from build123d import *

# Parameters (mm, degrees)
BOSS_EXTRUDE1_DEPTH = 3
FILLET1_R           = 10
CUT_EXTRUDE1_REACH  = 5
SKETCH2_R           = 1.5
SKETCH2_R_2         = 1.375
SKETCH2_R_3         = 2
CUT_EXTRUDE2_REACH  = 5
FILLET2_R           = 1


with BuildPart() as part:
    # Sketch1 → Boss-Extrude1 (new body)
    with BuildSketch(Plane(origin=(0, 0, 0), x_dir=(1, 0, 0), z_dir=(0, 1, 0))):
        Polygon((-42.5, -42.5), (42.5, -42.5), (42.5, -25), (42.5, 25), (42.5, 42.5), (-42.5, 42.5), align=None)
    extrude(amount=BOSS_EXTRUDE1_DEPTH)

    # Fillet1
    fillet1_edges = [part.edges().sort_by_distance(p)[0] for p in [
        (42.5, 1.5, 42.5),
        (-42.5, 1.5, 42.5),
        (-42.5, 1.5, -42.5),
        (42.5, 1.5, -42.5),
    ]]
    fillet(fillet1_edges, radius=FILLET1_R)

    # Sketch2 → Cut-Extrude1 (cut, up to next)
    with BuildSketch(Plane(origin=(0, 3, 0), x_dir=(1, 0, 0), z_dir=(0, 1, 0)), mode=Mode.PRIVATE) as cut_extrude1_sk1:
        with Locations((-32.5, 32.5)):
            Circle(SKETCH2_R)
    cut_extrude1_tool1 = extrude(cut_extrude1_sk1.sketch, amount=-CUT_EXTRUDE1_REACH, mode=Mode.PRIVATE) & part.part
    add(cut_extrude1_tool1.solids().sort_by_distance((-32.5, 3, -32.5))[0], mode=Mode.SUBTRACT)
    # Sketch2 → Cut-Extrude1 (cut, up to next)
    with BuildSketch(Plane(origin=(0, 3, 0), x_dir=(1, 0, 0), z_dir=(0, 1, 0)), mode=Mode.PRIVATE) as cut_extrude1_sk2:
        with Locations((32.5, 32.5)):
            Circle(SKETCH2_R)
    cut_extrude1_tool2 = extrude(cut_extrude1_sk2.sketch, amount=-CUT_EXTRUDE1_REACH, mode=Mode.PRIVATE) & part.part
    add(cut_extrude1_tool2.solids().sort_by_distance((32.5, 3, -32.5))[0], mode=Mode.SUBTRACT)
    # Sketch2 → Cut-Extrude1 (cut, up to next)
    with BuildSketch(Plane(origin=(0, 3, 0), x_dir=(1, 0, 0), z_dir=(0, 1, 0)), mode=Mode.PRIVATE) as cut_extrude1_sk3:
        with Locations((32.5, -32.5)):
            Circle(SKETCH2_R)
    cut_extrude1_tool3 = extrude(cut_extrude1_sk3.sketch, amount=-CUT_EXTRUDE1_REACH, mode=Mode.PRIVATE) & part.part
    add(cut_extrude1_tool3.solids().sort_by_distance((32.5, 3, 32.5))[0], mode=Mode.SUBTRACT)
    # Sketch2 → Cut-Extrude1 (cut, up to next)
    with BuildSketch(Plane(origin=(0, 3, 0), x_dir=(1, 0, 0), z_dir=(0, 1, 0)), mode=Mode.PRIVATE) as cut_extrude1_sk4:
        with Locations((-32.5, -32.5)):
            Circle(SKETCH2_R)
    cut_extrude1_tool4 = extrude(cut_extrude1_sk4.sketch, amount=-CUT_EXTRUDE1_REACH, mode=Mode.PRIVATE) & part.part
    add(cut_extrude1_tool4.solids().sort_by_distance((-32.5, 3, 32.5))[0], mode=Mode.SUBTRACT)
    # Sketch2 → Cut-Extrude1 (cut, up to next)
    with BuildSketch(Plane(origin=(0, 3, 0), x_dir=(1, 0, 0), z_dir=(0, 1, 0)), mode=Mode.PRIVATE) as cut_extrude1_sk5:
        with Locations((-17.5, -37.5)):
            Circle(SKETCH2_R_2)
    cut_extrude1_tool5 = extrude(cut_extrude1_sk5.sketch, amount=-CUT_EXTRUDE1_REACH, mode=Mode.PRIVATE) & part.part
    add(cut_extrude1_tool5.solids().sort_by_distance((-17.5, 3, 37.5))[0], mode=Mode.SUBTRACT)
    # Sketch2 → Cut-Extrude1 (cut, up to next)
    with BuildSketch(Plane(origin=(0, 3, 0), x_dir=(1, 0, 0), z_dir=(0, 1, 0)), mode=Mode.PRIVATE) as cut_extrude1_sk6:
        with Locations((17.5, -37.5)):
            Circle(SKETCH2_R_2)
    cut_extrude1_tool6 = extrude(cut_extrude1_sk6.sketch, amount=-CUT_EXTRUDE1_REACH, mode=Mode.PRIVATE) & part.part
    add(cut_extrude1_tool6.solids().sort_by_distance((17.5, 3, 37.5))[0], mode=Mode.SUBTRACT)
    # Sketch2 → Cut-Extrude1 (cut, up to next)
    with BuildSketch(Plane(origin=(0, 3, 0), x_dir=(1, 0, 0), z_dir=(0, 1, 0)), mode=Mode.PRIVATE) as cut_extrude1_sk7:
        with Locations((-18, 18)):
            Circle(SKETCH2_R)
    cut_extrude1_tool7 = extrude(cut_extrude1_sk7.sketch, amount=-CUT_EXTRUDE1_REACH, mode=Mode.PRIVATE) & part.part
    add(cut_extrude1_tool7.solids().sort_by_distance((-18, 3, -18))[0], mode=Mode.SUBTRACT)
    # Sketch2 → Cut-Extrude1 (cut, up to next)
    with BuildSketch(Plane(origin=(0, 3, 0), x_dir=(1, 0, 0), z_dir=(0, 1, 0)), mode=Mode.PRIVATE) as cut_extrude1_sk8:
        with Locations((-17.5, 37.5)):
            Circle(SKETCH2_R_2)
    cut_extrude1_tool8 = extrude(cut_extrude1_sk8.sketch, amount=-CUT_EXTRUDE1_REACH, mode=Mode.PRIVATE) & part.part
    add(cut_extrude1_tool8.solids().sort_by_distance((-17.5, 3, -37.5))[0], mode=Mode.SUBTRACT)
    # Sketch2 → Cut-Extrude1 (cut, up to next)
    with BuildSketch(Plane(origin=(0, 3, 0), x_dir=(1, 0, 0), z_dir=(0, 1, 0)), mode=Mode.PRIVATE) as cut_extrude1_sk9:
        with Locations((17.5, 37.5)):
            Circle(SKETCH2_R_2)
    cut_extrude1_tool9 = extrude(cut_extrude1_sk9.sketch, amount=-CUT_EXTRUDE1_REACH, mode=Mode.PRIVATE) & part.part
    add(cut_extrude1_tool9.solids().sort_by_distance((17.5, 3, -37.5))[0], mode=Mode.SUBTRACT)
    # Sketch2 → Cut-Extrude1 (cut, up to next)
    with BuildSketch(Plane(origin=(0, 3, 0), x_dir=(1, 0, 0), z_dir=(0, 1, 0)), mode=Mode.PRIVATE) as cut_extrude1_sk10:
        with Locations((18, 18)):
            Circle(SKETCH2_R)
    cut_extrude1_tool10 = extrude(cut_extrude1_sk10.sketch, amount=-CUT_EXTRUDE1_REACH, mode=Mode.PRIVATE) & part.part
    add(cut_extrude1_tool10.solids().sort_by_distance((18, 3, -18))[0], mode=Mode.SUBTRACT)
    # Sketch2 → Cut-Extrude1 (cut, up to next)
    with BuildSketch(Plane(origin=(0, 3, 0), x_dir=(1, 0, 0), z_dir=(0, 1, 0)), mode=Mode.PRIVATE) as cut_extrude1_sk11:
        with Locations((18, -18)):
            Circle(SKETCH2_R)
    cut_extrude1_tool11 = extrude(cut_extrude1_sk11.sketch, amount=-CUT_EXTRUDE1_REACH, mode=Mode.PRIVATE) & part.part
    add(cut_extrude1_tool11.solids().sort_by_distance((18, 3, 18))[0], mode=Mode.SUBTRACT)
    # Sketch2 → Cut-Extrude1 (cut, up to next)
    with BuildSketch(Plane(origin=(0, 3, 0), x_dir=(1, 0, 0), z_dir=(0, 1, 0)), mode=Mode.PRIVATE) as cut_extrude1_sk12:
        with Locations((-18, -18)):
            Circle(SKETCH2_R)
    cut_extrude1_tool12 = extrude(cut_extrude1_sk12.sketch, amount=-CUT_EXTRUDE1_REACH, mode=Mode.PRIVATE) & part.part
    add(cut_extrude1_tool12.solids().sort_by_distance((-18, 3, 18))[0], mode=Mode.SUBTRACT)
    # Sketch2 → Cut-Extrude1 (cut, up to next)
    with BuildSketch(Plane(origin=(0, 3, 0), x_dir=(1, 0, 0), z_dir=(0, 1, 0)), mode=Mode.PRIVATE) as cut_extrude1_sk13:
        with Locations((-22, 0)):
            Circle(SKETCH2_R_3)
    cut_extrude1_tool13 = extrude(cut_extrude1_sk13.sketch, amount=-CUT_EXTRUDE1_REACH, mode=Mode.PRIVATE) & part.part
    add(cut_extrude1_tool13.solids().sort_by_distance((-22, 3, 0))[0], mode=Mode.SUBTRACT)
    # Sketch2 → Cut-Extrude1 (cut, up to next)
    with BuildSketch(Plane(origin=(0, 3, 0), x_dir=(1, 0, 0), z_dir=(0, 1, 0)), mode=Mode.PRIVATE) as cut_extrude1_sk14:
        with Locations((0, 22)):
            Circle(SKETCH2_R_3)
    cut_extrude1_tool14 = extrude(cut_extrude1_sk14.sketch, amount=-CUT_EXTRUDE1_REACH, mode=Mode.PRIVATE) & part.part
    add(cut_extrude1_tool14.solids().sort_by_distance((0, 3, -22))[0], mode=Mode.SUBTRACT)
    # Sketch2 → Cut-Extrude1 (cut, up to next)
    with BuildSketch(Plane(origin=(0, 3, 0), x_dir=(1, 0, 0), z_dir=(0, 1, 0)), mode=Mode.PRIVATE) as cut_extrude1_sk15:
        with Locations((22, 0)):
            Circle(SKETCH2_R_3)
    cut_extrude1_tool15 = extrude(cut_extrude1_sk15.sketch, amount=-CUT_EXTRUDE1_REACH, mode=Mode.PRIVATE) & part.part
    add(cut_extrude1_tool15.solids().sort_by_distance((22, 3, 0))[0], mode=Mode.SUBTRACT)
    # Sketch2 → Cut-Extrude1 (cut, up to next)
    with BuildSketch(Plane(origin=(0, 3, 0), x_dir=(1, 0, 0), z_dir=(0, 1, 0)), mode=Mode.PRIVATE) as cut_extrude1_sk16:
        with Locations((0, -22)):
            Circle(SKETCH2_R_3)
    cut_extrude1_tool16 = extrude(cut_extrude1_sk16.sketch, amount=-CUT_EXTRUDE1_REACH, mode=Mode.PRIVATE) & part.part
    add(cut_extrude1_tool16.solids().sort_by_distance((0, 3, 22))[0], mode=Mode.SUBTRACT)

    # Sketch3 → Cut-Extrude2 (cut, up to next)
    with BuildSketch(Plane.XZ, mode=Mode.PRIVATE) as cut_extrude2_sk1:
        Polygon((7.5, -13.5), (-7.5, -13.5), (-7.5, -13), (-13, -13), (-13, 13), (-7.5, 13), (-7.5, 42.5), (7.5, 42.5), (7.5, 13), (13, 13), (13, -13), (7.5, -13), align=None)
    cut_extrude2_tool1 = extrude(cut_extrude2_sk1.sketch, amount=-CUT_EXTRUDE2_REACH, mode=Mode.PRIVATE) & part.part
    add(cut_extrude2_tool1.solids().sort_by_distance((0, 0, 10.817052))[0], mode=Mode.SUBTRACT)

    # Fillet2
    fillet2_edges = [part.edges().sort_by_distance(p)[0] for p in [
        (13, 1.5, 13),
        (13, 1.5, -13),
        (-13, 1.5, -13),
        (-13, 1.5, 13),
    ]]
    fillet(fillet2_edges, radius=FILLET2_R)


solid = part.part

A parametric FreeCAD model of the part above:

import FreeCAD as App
import Part
import Sketcher

V = App.Vector


def edges_at(feature, points):
    """Names of the edges that pass closest to the given points."""
    edges = feature.Shape.Edges
    near = lambda p: min(range(len(edges)), key=lambda i: edges[i].distToShape(Part.Vertex(*p))[0])
    return sorted({f"Edge{near(p) + 1}" for p in points})

doc = App.newDocument("Part")
body = doc.addObject("PartDesign::Body", "Body")

sketch1 = body.newObject("Sketcher::SketchObject", "Sketch")
sketch1.AttachmentSupport = (doc.getObject("XZ_Plane"), [""])
sketch1.MapMode = "FlatFace"
sketch1.addGeometry([
    Part.LineSegment(V(-42, 42, 0), V(42, 42, 0)),
    Part.LineSegment(V(42, 42, 0), V(42, -42, 0)),
    Part.LineSegment(V(42, -42, 0), V(-42, -42, 0)),
    Part.LineSegment(V(-42, -42, 0), V(-42, 42, 0)),
], False)
sketch1.addConstraint([
    Sketcher.Constraint("Coincident", 0, 2, 1, 1),
    Sketcher.Constraint("Coincident", 1, 2, 2, 1),
    Sketcher.Constraint("Coincident", 2, 2, 3, 1),
    Sketcher.Constraint("Coincident", 3, 2, 0, 1),
    Sketcher.Constraint("Horizontal", 0),
    Sketcher.Constraint("Vertical", 1),
    Sketcher.Constraint("Horizontal", 2),
    Sketcher.Constraint("Vertical", 3),
    Sketcher.Constraint("Symmetric", 0, 2, 2, 2, -1, 1),
    Sketcher.Constraint("Equal", 2, 1),
    Sketcher.Constraint("DistanceX", 0, 1, 0, 2, 85.0),
])
pad1 = body.newObject("PartDesign::Pad", "Pad")
pad1.Profile = sketch1
pad1.Length = 3
pad1.Reversed = True
doc.recompute()

fillet = body.newObject("PartDesign::Fillet", "Fillet")
fillet.Base = (pad1, edges_at(pad1, [
    (42.5, 1.5, 42.5),
    (-42.5, 1.5, 42.5),
    (-42.5, 1.5, -42.5),
    (42.5, 1.5, -42.5),
]))
fillet.Radius = 10

sketch2 = body.newObject("Sketcher::SketchObject", "Sketch001")
sketch2.AttachmentSupport = (doc.getObject("XZ_Plane"), [""])
sketch2.MapMode = "FlatFace"
sketch2.AttachmentOffset = App.Placement(V(0, 0, -3), App.Rotation())
sketch2.addGeometry(Part.Circle(V(-32.5, -32.5, 0), V(0, 0, 1), 1.5), False)
sketch2.addConstraint([
    Sketcher.Constraint("Diameter", 0, 3.0),
    Sketcher.Constraint("DistanceX", 0, 3, -1, 1, 32.5),
    Sketcher.Constraint("DistanceY", 0, 3, -1, 1, 32.5),
])
pocket1 = body.newObject("PartDesign::Pocket", "Pocket")
pocket1.Profile = sketch2
pocket1.Type = "UpToFirst"
pocket1.Reversed = True

sketch3 = body.newObject("Sketcher::SketchObject", "Sketch002")
sketch3.AttachmentSupport = (doc.getObject("XZ_Plane"), [""])
sketch3.MapMode = "FlatFace"
sketch3.AttachmentOffset = App.Placement(V(0, 0, -3), App.Rotation())
sketch3.addGeometry(Part.Circle(V(32.5, -32.5, 0), V(0, 0, 1), 1.5), False)
sketch3.addConstraint([
    Sketcher.Constraint("Diameter", 0, 3.0),
    Sketcher.Constraint("DistanceX", -1, 1, 0, 3, 32.5),
    Sketcher.Constraint("DistanceY", 0, 3, -1, 1, 32.5),
])
pocket2 = body.newObject("PartDesign::Pocket", "Pocket001")
pocket2.Profile = sketch3
pocket2.Type = "UpToFirst"
pocket2.Reversed = True

sketch4 = body.newObject("Sketcher::SketchObject", "Sketch003")
sketch4.AttachmentSupport = (doc.getObject("XZ_Plane"), [""])
sketch4.MapMode = "FlatFace"
sketch4.AttachmentOffset = App.Placement(V(0, 0, -3), App.Rotation())
sketch4.addGeometry(Part.Circle(V(32.5, 32.5, 0), V(0, 0, 1), 1.5), False)
sketch4.addConstraint([
    Sketcher.Constraint("Diameter", 0, 3.0),
    Sketcher.Constraint("DistanceX", -1, 1, 0, 3, 32.5),
    Sketcher.Constraint("DistanceY", -1, 1, 0, 3, 32.5),
])
pocket3 = body.newObject("PartDesign::Pocket", "Pocket002")
pocket3.Profile = sketch4
pocket3.Type = "UpToFirst"
pocket3.Reversed = True

sketch5 = body.newObject("Sketcher::SketchObject", "Sketch004")
sketch5.AttachmentSupport = (doc.getObject("XZ_Plane"), [""])
sketch5.MapMode = "FlatFace"
sketch5.AttachmentOffset = App.Placement(V(0, 0, -3), App.Rotation())
sketch5.addGeometry(Part.Circle(V(-32.5, 32.5, 0), V(0, 0, 1), 1.5), False)
sketch5.addConstraint([
    Sketcher.Constraint("Diameter", 0, 3.0),
    Sketcher.Constraint("DistanceX", 0, 3, -1, 1, 32.5),
    Sketcher.Constraint("DistanceY", -1, 1, 0, 3, 32.5),
])
pocket4 = body.newObject("PartDesign::Pocket", "Pocket003")
pocket4.Profile = sketch5
pocket4.Type = "UpToFirst"
pocket4.Reversed = True

sketch6 = body.newObject("Sketcher::SketchObject", "Sketch005")
sketch6.AttachmentSupport = (doc.getObject("XZ_Plane"), [""])
sketch6.MapMode = "FlatFace"
sketch6.AttachmentOffset = App.Placement(V(0, 0, -3), App.Rotation())
sketch6.addGeometry(Part.Circle(V(-17.5, 37.5, 0), V(0, 0, 1), 1.4), False)
sketch6.addConstraint([
    Sketcher.Constraint("Diameter", 0, 2.75),
    Sketcher.Constraint("DistanceX", 0, 3, -1, 1, 17.5),
    Sketcher.Constraint("DistanceY", -1, 1, 0, 3, 37.5),
])
pocket5 = body.newObject("PartDesign::Pocket", "Pocket004")
pocket5.Profile = sketch6
pocket5.Type = "UpToFirst"
pocket5.Reversed = True

sketch7 = body.newObject("Sketcher::SketchObject", "Sketch006")
sketch7.AttachmentSupport = (doc.getObject("XZ_Plane"), [""])
sketch7.MapMode = "FlatFace"
sketch7.AttachmentOffset = App.Placement(V(0, 0, -3), App.Rotation())
sketch7.addGeometry(Part.Circle(V(17.5, 37.5, 0), V(0, 0, 1), 1.4), False)
sketch7.addConstraint([
    Sketcher.Constraint("Diameter", 0, 2.75),
    Sketcher.Constraint("DistanceX", -1, 1, 0, 3, 17.5),
    Sketcher.Constraint("DistanceY", -1, 1, 0, 3, 37.5),
])
pocket6 = body.newObject("PartDesign::Pocket", "Pocket005")
pocket6.Profile = sketch7
pocket6.Type = "UpToFirst"
pocket6.Reversed = True

sketch8 = body.newObject("Sketcher::SketchObject", "Sketch007")
sketch8.AttachmentSupport = (doc.getObject("XZ_Plane"), [""])
sketch8.MapMode = "FlatFace"
sketch8.AttachmentOffset = App.Placement(V(0, 0, -3), App.Rotation())
sketch8.addGeometry(Part.Circle(V(-18, -18, 0), V(0, 0, 1), 1.5), False)
sketch8.addConstraint([
    Sketcher.Constraint("Diameter", 0, 3.0),
    Sketcher.Constraint("DistanceX", 0, 3, -1, 1, 18.0),
    Sketcher.Constraint("DistanceY", 0, 3, -1, 1, 18.0),
])
pocket7 = body.newObject("PartDesign::Pocket", "Pocket006")
pocket7.Profile = sketch8
pocket7.Type = "UpToFirst"
pocket7.Reversed = True

sketch9 = body.newObject("Sketcher::SketchObject", "Sketch008")
sketch9.AttachmentSupport = (doc.getObject("XZ_Plane"), [""])
sketch9.MapMode = "FlatFace"
sketch9.AttachmentOffset = App.Placement(V(0, 0, -3), App.Rotation())
sketch9.addGeometry(Part.Circle(V(-17.5, -37.5, 0), V(0, 0, 1), 1.4), False)
sketch9.addConstraint([
    Sketcher.Constraint("Diameter", 0, 2.75),
    Sketcher.Constraint("DistanceX", 0, 3, -1, 1, 17.5),
    Sketcher.Constraint("DistanceY", 0, 3, -1, 1, 37.5),
])
pocket8 = body.newObject("PartDesign::Pocket", "Pocket007")
pocket8.Profile = sketch9
pocket8.Type = "UpToFirst"
pocket8.Reversed = True

sketch10 = body.newObject("Sketcher::SketchObject", "Sketch009")
sketch10.AttachmentSupport = (doc.getObject("XZ_Plane"), [""])
sketch10.MapMode = "FlatFace"
sketch10.AttachmentOffset = App.Placement(V(0, 0, -3), App.Rotation())
sketch10.addGeometry(Part.Circle(V(17.5, -37.5, 0), V(0, 0, 1), 1.4), False)
sketch10.addConstraint([
    Sketcher.Constraint("Diameter", 0, 2.75),
    Sketcher.Constraint("DistanceX", -1, 1, 0, 3, 17.5),
    Sketcher.Constraint("DistanceY", 0, 3, -1, 1, 37.5),
])
pocket9 = body.newObject("PartDesign::Pocket", "Pocket008")
pocket9.Profile = sketch10
pocket9.Type = "UpToFirst"
pocket9.Reversed = True

sketch11 = body.newObject("Sketcher::SketchObject", "Sketch010")
sketch11.AttachmentSupport = (doc.getObject("XZ_Plane"), [""])
sketch11.MapMode = "FlatFace"
sketch11.AttachmentOffset = App.Placement(V(0, 0, -3), App.Rotation())
sketch11.addGeometry(Part.Circle(V(18, -18, 0), V(0, 0, 1), 1.5), False)
sketch11.addConstraint([
    Sketcher.Constraint("Diameter", 0, 3.0),
    Sketcher.Constraint("DistanceX", -1, 1, 0, 3, 18.0),
    Sketcher.Constraint("DistanceY", 0, 3, -1, 1, 18.0),
])
pocket10 = body.newObject("PartDesign::Pocket", "Pocket009")
pocket10.Profile = sketch11
pocket10.Type = "UpToFirst"
pocket10.Reversed = True

sketch12 = body.newObject("Sketcher::SketchObject", "Sketch011")
sketch12.AttachmentSupport = (doc.getObject("XZ_Plane"), [""])
sketch12.MapMode = "FlatFace"
sketch12.AttachmentOffset = App.Placement(V(0, 0, -3), App.Rotation())
sketch12.addGeometry(Part.Circle(V(18, 18, 0), V(0, 0, 1), 1.5), False)
sketch12.addConstraint([
    Sketcher.Constraint("Diameter", 0, 3.0),
    Sketcher.Constraint("DistanceX", -1, 1, 0, 3, 18.0),
    Sketcher.Constraint("DistanceY", -1, 1, 0, 3, 18.0),
])
pocket11 = body.newObject("PartDesign::Pocket", "Pocket010")
pocket11.Profile = sketch12
pocket11.Type = "UpToFirst"
pocket11.Reversed = True

sketch13 = body.newObject("Sketcher::SketchObject", "Sketch012")
sketch13.AttachmentSupport = (doc.getObject("XZ_Plane"), [""])
sketch13.MapMode = "FlatFace"
sketch13.AttachmentOffset = App.Placement(V(0, 0, -3), App.Rotation())
sketch13.addGeometry(Part.Circle(V(-18, 18, 0), V(0, 0, 1), 1.5), False)
sketch13.addConstraint([
    Sketcher.Constraint("Diameter", 0, 3.0),
    Sketcher.Constraint("DistanceX", 0, 3, -1, 1, 18.0),
    Sketcher.Constraint("DistanceY", -1, 1, 0, 3, 18.0),
])
pocket12 = body.newObject("PartDesign::Pocket", "Pocket011")
pocket12.Profile = sketch13
pocket12.Type = "UpToFirst"
pocket12.Reversed = True

sketch14 = body.newObject("Sketcher::SketchObject", "Sketch013")
sketch14.AttachmentSupport = (doc.getObject("XZ_Plane"), [""])
sketch14.MapMode = "FlatFace"
sketch14.AttachmentOffset = App.Placement(V(0, 0, -3), App.Rotation())
sketch14.addGeometry(Part.Circle(V(-22, 0, 0), V(0, 0, 1), 2), False)
sketch14.addConstraint([
    Sketcher.Constraint("PointOnObject", 0, 3, -1),
    Sketcher.Constraint("Diameter", 0, 4.0),
    Sketcher.Constraint("DistanceX", 0, 3, -1, 1, 22.0),
])
pocket13 = body.newObject("PartDesign::Pocket", "Pocket012")
pocket13.Profile = sketch14
pocket13.Type = "UpToFirst"
pocket13.Reversed = True

sketch15 = body.newObject("Sketcher::SketchObject", "Sketch014")
sketch15.AttachmentSupport = (doc.getObject("XZ_Plane"), [""])
sketch15.MapMode = "FlatFace"
sketch15.AttachmentOffset = App.Placement(V(0, 0, -3), App.Rotation())
sketch15.addGeometry(Part.Circle(V(0, -22, 0), V(0, 0, 1), 2), False)
sketch15.addConstraint([
    Sketcher.Constraint("PointOnObject", 0, 3, -2),
    Sketcher.Constraint("Diameter", 0, 4.0),
    Sketcher.Constraint("DistanceY", 0, 3, -1, 1, 22.0),
])
pocket14 = body.newObject("PartDesign::Pocket", "Pocket013")
pocket14.Profile = sketch15
pocket14.Type = "UpToFirst"
pocket14.Reversed = True

sketch16 = body.newObject("Sketcher::SketchObject", "Sketch015")
sketch16.AttachmentSupport = (doc.getObject("XZ_Plane"), [""])
sketch16.MapMode = "FlatFace"
sketch16.AttachmentOffset = App.Placement(V(0, 0, -3), App.Rotation())
sketch16.addGeometry(Part.Circle(V(22, 0, 0), V(0, 0, 1), 2), False)
sketch16.addConstraint([
    Sketcher.Constraint("PointOnObject", 0, 3, -1),
    Sketcher.Constraint("Diameter", 0, 4.0),
    Sketcher.Constraint("DistanceX", -1, 1, 0, 3, 22.0),
])
pocket15 = body.newObject("PartDesign::Pocket", "Pocket014")
pocket15.Profile = sketch16
pocket15.Type = "UpToFirst"
pocket15.Reversed = True

sketch17 = body.newObject("Sketcher::SketchObject", "Sketch016")
sketch17.AttachmentSupport = (doc.getObject("XZ_Plane"), [""])
sketch17.MapMode = "FlatFace"
sketch17.AttachmentOffset = App.Placement(V(0, 0, -3), App.Rotation())
sketch17.addGeometry(Part.Circle(V(0, 22, 0), V(0, 0, 1), 2), False)
sketch17.addConstraint([
    Sketcher.Constraint("PointOnObject", 0, 3, -2),
    Sketcher.Constraint("Diameter", 0, 4.0),
    Sketcher.Constraint("DistanceY", -1, 1, 0, 3, 22.0),
])
pocket16 = body.newObject("PartDesign::Pocket", "Pocket015")
pocket16.Profile = sketch17
pocket16.Type = "UpToFirst"
pocket16.Reversed = True

sketch18 = body.newObject("Sketcher::SketchObject", "Sketch017")
sketch18.AttachmentSupport = (doc.getObject("XZ_Plane"), [""])
sketch18.MapMode = "FlatFace"
sketch18.addGeometry([
    Part.LineSegment(V(-7.5, -13.5, 0), V(7.5, -13.5, 0)),
    Part.LineSegment(V(7.5, -13.5, 0), V(7.5, -13, 0)),
    Part.LineSegment(V(7.5, -13, 0), V(13, -13, 0)),
    Part.LineSegment(V(13, -13, 0), V(13, 13, 0)),
    Part.LineSegment(V(13, 13, 0), V(7.5, 13, 0)),
    Part.LineSegment(V(7.5, 13, 0), V(7.5, 42.5, 0)),
    Part.LineSegment(V(7.5, 42.5, 0), V(-7.5, 42.5, 0)),
    Part.LineSegment(V(-7.5, 42.5, 0), V(-7.5, 13, 0)),
    Part.LineSegment(V(-7.5, 13, 0), V(-13, 13, 0)),
    Part.LineSegment(V(-13, 13, 0), V(-13, -13, 0)),
    Part.LineSegment(V(-13, -13, 0), V(-7.5, -13, 0)),
    Part.LineSegment(V(-7.5, -13, 0), V(-7.5, -13.5, 0)),
], False)
sketch18.addConstraint([
    Sketcher.Constraint("Coincident", 0, 2, 1, 1),
    Sketcher.Constraint("Coincident", 1, 2, 2, 1),
    Sketcher.Constraint("Coincident", 2, 2, 3, 1),
    Sketcher.Constraint("Coincident", 3, 2, 4, 1),
    Sketcher.Constraint("Coincident", 4, 2, 5, 1),
    Sketcher.Constraint("Coincident", 5, 2, 6, 1),
    Sketcher.Constraint("Coincident", 6, 2, 7, 1),
    Sketcher.Constraint("Coincident", 7, 2, 8, 1),
    Sketcher.Constraint("Coincident", 8, 2, 9, 1),
    Sketcher.Constraint("Coincident", 9, 2, 10, 1),
    Sketcher.Constraint("Coincident", 10, 2, 11, 1),
    Sketcher.Constraint("Coincident", 11, 2, 0, 1),
    Sketcher.Constraint("Horizontal", 0),
    Sketcher.Constraint("Vertical", 1),
    Sketcher.Constraint("Horizontal", 2),
    Sketcher.Constraint("Vertical", 3),
    Sketcher.Constraint("Horizontal", 4),
    Sketcher.Constraint("Vertical", 5),
    Sketcher.Constraint("Horizontal", 6),
    Sketcher.Constraint("Vertical", 7),
    Sketcher.Constraint("Horizontal", 8),
    Sketcher.Constraint("Vertical", 9),
    Sketcher.Constraint("Horizontal", 10),
    Sketcher.Constraint("Vertical", 11),
    Sketcher.Constraint("Symmetric", 1, 2, 7, 2, -1, 1),
    Sketcher.Constraint("Symmetric", 3, 2, 9, 2, -1, 1),
    Sketcher.Constraint("Symmetric", 4, 2, 7, 2, -2),
    Sketcher.Constraint("Vertical", 7, 2, 10, 2),
    Sketcher.Constraint("DistanceX", 0, 1, 0, 2, 15.0),
    Sketcher.Constraint("DistanceY", 3, 1, 3, 2, 26.0),
    Sketcher.Constraint("DistanceX", 2, 1, 2, 2, 5.5),
    Sketcher.Constraint("DistanceY", 1, 1, 1, 2, 0.5),
    Sketcher.Constraint("DistanceY", 5, 1, 5, 2, 29.5),
])
pocket17 = body.newObject("PartDesign::Pocket", "Pocket016")
pocket17.Profile = sketch18
pocket17.Type = "UpToFirst"
doc.recompute()

fillet2 = body.newObject("PartDesign::Fillet", "Fillet001")
fillet2.Base = (pocket17, edges_at(pocket17, [
    (13, 1.5, 13),
    (13, 1.5, -13),
    (-13, 1.5, -13),
    (-13, 1.5, 13),
]))
fillet2.Radius = 1

doc.recompute()
